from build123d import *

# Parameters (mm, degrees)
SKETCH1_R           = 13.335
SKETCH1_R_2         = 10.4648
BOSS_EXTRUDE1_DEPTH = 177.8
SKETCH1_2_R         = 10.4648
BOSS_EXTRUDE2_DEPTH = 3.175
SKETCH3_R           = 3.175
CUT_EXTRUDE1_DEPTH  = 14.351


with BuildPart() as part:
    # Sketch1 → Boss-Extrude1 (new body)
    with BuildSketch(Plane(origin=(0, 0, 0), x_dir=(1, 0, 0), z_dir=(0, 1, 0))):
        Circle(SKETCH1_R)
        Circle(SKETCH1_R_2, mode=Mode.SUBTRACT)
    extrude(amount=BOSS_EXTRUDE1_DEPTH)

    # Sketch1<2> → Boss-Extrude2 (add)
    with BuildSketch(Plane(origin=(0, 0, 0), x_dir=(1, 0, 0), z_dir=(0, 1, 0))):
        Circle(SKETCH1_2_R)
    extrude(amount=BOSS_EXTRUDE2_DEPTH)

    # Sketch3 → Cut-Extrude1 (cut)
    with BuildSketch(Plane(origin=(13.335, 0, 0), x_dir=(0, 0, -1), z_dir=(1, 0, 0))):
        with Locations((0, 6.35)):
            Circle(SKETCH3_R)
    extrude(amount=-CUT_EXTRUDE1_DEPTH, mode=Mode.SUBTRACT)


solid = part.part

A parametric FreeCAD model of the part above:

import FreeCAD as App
import Part
import Sketcher

V = App.Vector
Q = App.Units.Quantity

doc = App.newDocument("Part")
body = doc.addObject("PartDesign::Body", "Body")

# Sketch on XZ plane
sketch1 = body.newObject("Sketcher::SketchObject", "Sketch")
sketch1.AttachmentSupport = (doc.getObject("XZ_Plane"), [""])
sketch1.MapMode = "FlatFace"
sketch1.addGeometry([
    Part.Circle(V(0, 0, 0), V(0, 0, 1), 13.335),
    Part.Circle(V(0, 0, 0), V(0, 0, 1), 10.4648),
], False)
sketch1.addConstraint([
    Sketcher.Constraint("Coincident", 0, 3, -1, 1),
    Sketcher.Constraint("Coincident", 1, 3, -1, 1),
    Sketcher.Constraint("Diameter", 0, Q("1.05 in")),
    Sketcher.Constraint("Diameter", 1, Q("0.824 in")),
])
pad1 = body.newObject("PartDesign::Pad", "Pad")
pad1.Profile = sketch1
pad1.Length = Q("7 in")
pad1.Reversed = True

# Sketch on XZ plane
sketch2 = body.newObject("Sketcher::SketchObject", "Sketch001")
sketch2.AttachmentSupport = (doc.getObject("XZ_Plane"), [""])
sketch2.MapMode = "FlatFace"
sketch2.addGeometry(Part.Circle(V(0, 0, 0), V(0, 0, 1), 10.4648), False)
sketch2.addConstraint([
    Sketcher.Constraint("Coincident", 0, 3, -1, 1),
    Sketcher.Constraint("Diameter", 0, Q("0.824 in")),
])
pad2 = body.newObject("PartDesign::Pad", "Pad001")
pad2.Profile = sketch2
pad2.Length = Q("0.125 in")
pad2.Reversed = True

# Sketch on YZ plane
sketch3 = body.newObject("Sketcher::SketchObject", "Sketch002")
sketch3.AttachmentSupport = (doc.getObject("YZ_Plane"), [""])
sketch3.MapMode = "FlatFace"
sketch3.AttachmentOffset = App.Placement(V(0, 0, 0.525 * 25.4), App.Rotation())
sketch3.addGeometry(Part.Circle(V(6.35, 0, 0), V(0, 0, 1), 3.175), False)
sketch3.addConstraint([
    Sketcher.Constraint("PointOnObject", 0, 3, -1),
    Sketcher.Constraint("Diameter", 0, Q("0.25 in")),
    Sketcher.Constraint("DistanceX", -1, 1, 0, 3, Q("0.25 in")),
])
pocket1 = body.newObject("PartDesign::Pocket", "Pocket")
pocket1.Profile = sketch3
pocket1.Length = Q("0.565 in")

doc.recompute()
